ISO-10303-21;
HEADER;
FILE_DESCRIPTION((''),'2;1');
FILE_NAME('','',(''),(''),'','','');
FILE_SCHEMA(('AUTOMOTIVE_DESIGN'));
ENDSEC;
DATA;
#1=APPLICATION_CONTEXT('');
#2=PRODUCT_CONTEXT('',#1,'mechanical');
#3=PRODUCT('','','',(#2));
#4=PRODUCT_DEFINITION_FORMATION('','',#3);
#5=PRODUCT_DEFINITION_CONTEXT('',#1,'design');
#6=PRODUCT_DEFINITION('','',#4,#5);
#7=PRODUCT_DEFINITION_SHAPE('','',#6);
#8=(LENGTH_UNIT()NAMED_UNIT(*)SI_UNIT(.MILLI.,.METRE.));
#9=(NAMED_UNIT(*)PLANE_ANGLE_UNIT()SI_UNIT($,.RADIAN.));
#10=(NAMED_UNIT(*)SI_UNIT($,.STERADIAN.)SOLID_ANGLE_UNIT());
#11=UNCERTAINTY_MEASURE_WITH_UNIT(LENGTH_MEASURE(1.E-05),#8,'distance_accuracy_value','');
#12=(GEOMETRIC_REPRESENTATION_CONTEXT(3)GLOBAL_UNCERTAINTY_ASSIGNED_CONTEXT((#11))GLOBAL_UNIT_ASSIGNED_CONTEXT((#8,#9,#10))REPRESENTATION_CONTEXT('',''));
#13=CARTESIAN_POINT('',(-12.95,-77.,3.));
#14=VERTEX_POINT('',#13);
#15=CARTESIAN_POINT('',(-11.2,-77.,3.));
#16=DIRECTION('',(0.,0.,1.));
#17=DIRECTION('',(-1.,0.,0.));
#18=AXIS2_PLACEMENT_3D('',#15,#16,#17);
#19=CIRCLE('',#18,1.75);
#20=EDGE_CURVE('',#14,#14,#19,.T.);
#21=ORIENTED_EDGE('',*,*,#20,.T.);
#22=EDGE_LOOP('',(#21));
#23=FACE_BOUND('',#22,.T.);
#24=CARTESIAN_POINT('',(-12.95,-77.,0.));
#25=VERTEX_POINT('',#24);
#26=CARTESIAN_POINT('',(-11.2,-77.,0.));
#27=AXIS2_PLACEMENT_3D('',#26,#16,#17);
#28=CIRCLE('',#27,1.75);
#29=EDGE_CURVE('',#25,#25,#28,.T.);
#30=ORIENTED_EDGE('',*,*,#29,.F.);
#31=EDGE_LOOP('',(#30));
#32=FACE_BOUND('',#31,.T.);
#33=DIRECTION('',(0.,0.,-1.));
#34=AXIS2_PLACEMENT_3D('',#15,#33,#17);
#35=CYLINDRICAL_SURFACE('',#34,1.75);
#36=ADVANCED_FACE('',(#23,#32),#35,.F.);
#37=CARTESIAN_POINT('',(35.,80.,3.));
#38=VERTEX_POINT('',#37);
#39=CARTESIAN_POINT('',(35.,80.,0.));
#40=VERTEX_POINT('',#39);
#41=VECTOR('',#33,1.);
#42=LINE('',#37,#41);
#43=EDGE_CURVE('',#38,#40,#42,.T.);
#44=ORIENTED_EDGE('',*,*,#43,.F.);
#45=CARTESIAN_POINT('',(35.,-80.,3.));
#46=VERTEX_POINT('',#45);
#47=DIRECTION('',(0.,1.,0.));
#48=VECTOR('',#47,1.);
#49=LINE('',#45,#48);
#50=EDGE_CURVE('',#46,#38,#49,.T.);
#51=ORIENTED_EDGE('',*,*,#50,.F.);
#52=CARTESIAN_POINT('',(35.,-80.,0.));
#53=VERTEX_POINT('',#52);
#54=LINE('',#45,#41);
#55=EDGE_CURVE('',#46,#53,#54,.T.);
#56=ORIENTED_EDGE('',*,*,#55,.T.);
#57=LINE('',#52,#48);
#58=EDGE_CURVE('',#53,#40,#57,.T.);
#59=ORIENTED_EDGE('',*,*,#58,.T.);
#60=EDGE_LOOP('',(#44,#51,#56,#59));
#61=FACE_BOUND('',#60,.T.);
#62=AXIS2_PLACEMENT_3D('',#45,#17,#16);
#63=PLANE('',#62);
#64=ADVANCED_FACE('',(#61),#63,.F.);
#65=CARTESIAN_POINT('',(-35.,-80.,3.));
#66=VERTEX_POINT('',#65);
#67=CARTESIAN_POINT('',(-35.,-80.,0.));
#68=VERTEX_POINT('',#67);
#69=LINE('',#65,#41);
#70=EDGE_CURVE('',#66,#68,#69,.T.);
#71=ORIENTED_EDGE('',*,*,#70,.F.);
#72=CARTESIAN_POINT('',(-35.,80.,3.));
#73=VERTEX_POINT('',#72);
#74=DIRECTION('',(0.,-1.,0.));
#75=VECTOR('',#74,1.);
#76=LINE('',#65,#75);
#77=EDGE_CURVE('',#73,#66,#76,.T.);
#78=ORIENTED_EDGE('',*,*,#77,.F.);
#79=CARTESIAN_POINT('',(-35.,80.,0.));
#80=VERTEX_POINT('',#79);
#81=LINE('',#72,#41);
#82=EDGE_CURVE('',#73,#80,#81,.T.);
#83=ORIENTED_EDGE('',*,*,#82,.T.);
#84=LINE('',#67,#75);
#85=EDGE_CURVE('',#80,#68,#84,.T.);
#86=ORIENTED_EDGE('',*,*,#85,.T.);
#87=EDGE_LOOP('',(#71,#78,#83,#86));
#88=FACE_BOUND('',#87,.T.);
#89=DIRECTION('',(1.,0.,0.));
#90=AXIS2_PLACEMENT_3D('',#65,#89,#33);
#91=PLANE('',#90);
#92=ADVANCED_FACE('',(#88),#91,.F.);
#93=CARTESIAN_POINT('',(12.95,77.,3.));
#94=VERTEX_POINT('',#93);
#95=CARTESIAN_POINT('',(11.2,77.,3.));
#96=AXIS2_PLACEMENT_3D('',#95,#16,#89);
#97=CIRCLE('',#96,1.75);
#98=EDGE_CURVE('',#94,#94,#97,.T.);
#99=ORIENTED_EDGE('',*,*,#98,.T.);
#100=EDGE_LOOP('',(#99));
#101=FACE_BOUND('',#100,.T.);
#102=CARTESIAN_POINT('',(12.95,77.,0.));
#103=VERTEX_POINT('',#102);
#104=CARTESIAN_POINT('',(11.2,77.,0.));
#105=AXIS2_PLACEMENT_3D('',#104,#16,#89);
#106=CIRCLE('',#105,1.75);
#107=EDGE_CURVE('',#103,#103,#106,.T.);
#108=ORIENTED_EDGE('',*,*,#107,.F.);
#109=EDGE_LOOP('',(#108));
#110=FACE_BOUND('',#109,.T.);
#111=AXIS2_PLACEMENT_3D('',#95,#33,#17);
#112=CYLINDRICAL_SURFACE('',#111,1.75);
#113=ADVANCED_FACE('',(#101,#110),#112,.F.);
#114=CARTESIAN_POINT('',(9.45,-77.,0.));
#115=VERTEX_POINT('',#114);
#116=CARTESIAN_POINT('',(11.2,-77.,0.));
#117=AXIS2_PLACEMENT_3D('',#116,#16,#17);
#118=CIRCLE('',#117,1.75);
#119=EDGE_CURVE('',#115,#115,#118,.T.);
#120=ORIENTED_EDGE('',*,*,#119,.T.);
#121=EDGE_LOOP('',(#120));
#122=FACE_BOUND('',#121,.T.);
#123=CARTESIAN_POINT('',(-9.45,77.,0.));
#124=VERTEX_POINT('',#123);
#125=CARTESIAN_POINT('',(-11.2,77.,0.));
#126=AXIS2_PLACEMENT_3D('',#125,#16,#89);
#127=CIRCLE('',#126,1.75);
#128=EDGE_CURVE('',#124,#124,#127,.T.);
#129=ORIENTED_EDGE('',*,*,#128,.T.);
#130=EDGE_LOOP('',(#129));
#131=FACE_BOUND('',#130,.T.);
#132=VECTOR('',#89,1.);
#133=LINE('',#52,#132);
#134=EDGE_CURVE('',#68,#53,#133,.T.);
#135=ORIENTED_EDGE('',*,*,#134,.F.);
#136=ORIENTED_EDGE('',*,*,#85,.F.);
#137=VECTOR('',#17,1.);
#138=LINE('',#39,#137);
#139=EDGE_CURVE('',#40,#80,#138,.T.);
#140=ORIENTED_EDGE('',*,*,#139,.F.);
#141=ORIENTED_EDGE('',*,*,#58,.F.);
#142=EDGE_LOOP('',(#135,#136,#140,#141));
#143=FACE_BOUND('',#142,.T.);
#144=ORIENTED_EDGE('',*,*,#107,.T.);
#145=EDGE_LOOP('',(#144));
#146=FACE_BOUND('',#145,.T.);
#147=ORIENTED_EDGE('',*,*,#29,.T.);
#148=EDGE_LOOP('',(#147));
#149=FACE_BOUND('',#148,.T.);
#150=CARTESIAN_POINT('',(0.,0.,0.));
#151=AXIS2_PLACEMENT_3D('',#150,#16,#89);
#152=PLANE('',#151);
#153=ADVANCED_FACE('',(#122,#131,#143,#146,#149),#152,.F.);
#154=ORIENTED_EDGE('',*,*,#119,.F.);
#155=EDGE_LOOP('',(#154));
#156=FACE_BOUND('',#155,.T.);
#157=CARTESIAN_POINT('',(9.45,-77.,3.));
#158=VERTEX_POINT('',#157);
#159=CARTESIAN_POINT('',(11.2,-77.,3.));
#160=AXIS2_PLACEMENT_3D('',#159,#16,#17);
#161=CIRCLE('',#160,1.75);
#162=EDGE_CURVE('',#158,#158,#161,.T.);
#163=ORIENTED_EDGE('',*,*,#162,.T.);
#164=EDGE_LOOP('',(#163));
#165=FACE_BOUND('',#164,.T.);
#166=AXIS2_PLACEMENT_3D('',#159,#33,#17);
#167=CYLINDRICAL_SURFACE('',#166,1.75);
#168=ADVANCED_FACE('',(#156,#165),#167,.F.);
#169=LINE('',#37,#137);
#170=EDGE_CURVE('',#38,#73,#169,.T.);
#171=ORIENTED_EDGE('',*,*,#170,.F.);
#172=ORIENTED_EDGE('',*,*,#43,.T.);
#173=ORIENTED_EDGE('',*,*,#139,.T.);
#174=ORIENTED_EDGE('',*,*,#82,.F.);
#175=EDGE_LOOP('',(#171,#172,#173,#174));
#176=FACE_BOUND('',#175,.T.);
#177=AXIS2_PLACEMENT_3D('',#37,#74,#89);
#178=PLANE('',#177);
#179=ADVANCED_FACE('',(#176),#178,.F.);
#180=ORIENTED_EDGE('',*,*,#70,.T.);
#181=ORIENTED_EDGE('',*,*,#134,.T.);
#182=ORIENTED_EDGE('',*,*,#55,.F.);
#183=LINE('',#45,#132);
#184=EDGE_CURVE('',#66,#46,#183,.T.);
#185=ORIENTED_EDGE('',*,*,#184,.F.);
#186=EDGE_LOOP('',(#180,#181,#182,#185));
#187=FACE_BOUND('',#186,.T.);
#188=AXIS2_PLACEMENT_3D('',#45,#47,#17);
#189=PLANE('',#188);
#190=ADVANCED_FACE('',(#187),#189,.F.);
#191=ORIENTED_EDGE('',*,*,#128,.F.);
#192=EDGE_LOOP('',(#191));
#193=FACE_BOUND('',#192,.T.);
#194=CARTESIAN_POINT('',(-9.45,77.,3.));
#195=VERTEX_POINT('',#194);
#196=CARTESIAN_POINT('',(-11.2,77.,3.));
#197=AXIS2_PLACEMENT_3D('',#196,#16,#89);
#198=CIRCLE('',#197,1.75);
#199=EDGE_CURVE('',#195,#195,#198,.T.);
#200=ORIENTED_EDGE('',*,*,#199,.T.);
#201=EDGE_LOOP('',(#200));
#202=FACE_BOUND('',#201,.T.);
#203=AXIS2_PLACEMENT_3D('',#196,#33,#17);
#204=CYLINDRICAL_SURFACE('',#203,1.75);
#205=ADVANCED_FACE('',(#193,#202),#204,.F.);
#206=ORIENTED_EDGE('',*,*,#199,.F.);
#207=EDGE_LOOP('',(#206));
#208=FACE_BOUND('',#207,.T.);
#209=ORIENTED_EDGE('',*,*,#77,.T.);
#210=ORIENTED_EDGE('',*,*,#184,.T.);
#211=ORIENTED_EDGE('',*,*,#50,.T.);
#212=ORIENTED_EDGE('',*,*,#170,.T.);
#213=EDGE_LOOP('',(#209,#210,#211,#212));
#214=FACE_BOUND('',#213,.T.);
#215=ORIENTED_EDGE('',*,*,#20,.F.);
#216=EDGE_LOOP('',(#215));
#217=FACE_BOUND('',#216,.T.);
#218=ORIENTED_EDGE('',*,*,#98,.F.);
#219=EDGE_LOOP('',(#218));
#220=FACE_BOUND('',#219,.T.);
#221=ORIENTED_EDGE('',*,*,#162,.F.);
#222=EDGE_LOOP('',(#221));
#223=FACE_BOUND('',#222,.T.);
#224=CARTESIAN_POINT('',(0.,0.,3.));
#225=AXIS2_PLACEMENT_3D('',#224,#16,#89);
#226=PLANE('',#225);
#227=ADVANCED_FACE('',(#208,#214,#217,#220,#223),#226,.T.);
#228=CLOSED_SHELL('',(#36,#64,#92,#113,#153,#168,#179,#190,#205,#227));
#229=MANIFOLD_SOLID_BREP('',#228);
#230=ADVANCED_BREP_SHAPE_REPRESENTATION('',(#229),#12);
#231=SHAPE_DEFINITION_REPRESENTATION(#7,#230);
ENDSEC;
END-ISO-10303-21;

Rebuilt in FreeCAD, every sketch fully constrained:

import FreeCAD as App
import Part
import Sketcher
from FreeCAD import Vector


def add_polygon(sketch, points):
    """Adds a closed chain of lines whose ends are joined by coincident constraints."""
    first, n = sketch.GeometryCount, len(points)
    for a, b in zip(points, points[1:] + points[:1]):
        sketch.addGeometry(Part.LineSegment(App.Vector(*a, 0), App.Vector(*b, 0)), False)
    for i in range(n):
        sketch.addConstraint(Sketcher.Constraint("Coincident", first + i, 2, first + (i + 1) % n, 1))

doc = App.newDocument("Part")
body = doc.addObject("PartDesign::Body", "Body")

sketch1 = body.newObject("Sketcher::SketchObject", "Sketch")
sketch1.AttachmentSupport = (doc.getObject("XY_Plane"), [""])
sketch1.MapMode = "FlatFace"
add_polygon(sketch1, [(-35, 80), (-35, -80), (35, -80), (35, 80)])
sketch1.addGeometry(Part.Circle(Vector(-11.2, -77, 0), Vector(0, 0, 1), 1.8), False)
sketch1.addGeometry(Part.Circle(Vector(11.2, -77, 0), Vector(0, 0, 1), 1.8), False)
sketch1.addGeometry(Part.Circle(Vector(-11.2, 77, 0), Vector(0, 0, 1), 1.8), False)
sketch1.addGeometry(Part.Circle(Vector(11.2, 77, 0), Vector(0, 0, 1), 1.8), False)
sketch1.addConstraint(Sketcher.Constraint("Vertical", 0))
sketch1.addConstraint(Sketcher.Constraint("Horizontal", 1))
sketch1.addConstraint(Sketcher.Constraint("Vertical", 2))
sketch1.addConstraint(Sketcher.Constraint("Horizontal", 3))
sketch1.addConstraint(Sketcher.Constraint("Equal", 4, 5))
sketch1.addConstraint(Sketcher.Constraint("Equal", 5, 6))
sketch1.addConstraint(Sketcher.Constraint("Equal", 6, 7))
sketch1.addConstraint(Sketcher.Constraint("Symmetric", 5, 3, 6, 3, -1, 1))
sketch1.addConstraint(Sketcher.Constraint("Symmetric", 4, 3, 7, 3, -1, 1))
sketch1.addConstraint(Sketcher.Constraint("Symmetric", 0, 2, 2, 2, -1, 1))
sketch1.addConstraint(Sketcher.Constraint("Symmetric", 4, 3, 5, 3, -2))
sketch1.addConstraint(Sketcher.Constraint("Diameter", 4, 3.5))
sketch1.addConstraint(Sketcher.Constraint("DistanceX", 1, 1, 1, 2, 70.0))
sketch1.addConstraint(Sketcher.Constraint("DistanceY", 0, 2, 0, 1, 160.0))
sketch1.addConstraint(Sketcher.Constraint("DistanceY", 4, 3, -1, 1, 77.0))
sketch1.addConstraint(Sketcher.Constraint("DistanceX", 4, 3, -1, 1, 11.2))
pad1 = body.newObject("PartDesign::Pad", "Pad")
pad1.Profile = sketch1
pad1.Length = 3

doc.recompute()
